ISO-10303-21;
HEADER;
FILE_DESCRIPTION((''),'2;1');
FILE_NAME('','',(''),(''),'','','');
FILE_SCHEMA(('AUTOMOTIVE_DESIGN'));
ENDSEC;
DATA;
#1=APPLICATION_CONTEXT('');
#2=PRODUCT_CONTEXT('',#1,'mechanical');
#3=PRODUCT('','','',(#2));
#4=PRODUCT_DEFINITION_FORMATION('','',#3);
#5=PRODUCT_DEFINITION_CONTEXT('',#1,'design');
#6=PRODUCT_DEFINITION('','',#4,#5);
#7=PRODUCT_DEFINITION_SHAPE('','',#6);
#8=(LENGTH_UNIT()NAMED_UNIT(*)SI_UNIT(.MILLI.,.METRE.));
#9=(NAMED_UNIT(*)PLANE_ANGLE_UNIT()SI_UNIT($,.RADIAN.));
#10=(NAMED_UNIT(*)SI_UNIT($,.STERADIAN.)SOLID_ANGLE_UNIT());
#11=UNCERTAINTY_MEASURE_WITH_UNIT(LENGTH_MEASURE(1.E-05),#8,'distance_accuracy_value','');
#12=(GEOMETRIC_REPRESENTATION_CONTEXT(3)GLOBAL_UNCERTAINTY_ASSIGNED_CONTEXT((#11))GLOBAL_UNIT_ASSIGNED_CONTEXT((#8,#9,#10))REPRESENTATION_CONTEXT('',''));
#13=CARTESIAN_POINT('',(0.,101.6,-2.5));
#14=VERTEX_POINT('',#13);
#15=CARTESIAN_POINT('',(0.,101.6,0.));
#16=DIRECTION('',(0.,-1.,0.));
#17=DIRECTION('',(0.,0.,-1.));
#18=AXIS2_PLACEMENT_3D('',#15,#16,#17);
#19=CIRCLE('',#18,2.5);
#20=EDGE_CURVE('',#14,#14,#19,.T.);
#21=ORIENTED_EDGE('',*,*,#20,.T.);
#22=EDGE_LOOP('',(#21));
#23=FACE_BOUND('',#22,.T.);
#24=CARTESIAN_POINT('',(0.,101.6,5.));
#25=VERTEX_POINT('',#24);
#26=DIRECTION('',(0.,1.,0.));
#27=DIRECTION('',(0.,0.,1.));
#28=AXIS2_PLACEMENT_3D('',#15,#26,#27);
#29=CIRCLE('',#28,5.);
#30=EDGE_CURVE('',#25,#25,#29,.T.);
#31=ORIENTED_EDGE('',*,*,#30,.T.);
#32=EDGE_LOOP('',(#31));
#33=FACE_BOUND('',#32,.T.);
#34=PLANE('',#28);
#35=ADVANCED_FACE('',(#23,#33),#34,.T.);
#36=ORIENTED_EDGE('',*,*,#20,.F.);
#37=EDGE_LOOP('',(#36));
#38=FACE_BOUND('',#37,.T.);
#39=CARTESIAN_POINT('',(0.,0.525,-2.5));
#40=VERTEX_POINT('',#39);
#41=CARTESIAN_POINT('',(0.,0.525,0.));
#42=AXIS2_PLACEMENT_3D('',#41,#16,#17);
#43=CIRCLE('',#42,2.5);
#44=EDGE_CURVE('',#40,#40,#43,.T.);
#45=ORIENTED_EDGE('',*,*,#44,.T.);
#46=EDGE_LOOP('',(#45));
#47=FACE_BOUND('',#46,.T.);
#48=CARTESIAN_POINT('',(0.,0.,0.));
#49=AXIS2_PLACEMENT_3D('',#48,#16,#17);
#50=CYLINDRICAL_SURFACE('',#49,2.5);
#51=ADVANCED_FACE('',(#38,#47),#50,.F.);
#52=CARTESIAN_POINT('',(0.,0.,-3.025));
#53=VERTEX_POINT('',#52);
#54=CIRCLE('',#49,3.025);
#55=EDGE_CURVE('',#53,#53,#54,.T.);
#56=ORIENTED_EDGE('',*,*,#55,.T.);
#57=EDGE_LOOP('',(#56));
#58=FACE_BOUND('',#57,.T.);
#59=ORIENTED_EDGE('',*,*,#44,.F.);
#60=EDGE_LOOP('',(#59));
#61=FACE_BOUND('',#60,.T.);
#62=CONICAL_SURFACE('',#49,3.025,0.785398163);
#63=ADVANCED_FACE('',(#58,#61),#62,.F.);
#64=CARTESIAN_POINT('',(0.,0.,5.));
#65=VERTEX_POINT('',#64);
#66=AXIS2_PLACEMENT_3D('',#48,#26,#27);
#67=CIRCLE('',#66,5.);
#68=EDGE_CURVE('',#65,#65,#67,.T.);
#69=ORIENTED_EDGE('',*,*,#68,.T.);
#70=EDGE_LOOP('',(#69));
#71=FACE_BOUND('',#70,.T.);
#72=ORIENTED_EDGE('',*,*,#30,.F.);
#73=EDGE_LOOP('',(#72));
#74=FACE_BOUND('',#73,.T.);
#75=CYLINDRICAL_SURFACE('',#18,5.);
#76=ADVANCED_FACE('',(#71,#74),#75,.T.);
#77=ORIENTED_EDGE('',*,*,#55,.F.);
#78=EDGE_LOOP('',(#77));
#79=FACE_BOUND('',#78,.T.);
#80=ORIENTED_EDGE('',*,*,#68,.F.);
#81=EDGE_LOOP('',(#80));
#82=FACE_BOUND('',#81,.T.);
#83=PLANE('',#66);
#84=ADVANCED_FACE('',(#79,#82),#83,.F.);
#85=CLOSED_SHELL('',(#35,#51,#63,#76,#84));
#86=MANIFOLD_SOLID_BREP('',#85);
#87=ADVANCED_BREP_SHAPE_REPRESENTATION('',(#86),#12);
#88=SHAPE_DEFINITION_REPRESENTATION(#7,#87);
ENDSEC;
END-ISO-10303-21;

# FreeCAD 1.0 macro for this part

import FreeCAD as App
import Part
import Sketcher
Q = App.Units.Quantity

doc = App.newDocument("Part")
body = doc.addObject("PartDesign::Body", "Body")

sketch1 = body.newObject("Sketcher::SketchObject", "Sketch")
sketch1.AttachmentSupport = (doc.getObject("XZ_Plane"), [""])
sketch1.MapMode = "FlatFace"
sketch1.addGeometry(Part.Circle(App.Vector(0, 0, 0), App.Vector(0, 0, 1), 5), False)
sketch1.addConstraint([
    Sketcher.Constraint("Coincident", 0, 3, -1, 1),
    Sketcher.Constraint("Diameter", 0, Q("10 mm")),
])
pad1 = body.newObject("PartDesign::Pad", "Pad")
pad1.Profile = sketch1
pad1.Length = 101.6
pad1.Reversed = True

sketch2 = body.newObject("Sketcher::SketchObject", "Sketch001")
sketch2.AttachmentSupport = (doc.getObject("XZ_Plane"), [""])
sketch2.MapMode = "FlatFace"
sketch2.addGeometry(Part.Circle(App.Vector(0, 0, 0), App.Vector(0, 0, 1), 2.5), False)
sketch2.addConstraint([
    Sketcher.Constraint("Coincident", 0, 3, -1, 1),
    Sketcher.Constraint("Diameter", 0, Q("5 mm")),
])
doc.recompute()
hole = body.newObject("PartDesign::Hole", "Hole")
hole.Profile = sketch2
hole.ThreadType = "None"
hole.Diameter = 5
hole.DepthType = "ThroughAll"
hole.HoleCutType = "Countersink"
hole.HoleCutDiameter = 6.05
hole.HoleCutCountersinkAngle = 90

doc.recompute()
